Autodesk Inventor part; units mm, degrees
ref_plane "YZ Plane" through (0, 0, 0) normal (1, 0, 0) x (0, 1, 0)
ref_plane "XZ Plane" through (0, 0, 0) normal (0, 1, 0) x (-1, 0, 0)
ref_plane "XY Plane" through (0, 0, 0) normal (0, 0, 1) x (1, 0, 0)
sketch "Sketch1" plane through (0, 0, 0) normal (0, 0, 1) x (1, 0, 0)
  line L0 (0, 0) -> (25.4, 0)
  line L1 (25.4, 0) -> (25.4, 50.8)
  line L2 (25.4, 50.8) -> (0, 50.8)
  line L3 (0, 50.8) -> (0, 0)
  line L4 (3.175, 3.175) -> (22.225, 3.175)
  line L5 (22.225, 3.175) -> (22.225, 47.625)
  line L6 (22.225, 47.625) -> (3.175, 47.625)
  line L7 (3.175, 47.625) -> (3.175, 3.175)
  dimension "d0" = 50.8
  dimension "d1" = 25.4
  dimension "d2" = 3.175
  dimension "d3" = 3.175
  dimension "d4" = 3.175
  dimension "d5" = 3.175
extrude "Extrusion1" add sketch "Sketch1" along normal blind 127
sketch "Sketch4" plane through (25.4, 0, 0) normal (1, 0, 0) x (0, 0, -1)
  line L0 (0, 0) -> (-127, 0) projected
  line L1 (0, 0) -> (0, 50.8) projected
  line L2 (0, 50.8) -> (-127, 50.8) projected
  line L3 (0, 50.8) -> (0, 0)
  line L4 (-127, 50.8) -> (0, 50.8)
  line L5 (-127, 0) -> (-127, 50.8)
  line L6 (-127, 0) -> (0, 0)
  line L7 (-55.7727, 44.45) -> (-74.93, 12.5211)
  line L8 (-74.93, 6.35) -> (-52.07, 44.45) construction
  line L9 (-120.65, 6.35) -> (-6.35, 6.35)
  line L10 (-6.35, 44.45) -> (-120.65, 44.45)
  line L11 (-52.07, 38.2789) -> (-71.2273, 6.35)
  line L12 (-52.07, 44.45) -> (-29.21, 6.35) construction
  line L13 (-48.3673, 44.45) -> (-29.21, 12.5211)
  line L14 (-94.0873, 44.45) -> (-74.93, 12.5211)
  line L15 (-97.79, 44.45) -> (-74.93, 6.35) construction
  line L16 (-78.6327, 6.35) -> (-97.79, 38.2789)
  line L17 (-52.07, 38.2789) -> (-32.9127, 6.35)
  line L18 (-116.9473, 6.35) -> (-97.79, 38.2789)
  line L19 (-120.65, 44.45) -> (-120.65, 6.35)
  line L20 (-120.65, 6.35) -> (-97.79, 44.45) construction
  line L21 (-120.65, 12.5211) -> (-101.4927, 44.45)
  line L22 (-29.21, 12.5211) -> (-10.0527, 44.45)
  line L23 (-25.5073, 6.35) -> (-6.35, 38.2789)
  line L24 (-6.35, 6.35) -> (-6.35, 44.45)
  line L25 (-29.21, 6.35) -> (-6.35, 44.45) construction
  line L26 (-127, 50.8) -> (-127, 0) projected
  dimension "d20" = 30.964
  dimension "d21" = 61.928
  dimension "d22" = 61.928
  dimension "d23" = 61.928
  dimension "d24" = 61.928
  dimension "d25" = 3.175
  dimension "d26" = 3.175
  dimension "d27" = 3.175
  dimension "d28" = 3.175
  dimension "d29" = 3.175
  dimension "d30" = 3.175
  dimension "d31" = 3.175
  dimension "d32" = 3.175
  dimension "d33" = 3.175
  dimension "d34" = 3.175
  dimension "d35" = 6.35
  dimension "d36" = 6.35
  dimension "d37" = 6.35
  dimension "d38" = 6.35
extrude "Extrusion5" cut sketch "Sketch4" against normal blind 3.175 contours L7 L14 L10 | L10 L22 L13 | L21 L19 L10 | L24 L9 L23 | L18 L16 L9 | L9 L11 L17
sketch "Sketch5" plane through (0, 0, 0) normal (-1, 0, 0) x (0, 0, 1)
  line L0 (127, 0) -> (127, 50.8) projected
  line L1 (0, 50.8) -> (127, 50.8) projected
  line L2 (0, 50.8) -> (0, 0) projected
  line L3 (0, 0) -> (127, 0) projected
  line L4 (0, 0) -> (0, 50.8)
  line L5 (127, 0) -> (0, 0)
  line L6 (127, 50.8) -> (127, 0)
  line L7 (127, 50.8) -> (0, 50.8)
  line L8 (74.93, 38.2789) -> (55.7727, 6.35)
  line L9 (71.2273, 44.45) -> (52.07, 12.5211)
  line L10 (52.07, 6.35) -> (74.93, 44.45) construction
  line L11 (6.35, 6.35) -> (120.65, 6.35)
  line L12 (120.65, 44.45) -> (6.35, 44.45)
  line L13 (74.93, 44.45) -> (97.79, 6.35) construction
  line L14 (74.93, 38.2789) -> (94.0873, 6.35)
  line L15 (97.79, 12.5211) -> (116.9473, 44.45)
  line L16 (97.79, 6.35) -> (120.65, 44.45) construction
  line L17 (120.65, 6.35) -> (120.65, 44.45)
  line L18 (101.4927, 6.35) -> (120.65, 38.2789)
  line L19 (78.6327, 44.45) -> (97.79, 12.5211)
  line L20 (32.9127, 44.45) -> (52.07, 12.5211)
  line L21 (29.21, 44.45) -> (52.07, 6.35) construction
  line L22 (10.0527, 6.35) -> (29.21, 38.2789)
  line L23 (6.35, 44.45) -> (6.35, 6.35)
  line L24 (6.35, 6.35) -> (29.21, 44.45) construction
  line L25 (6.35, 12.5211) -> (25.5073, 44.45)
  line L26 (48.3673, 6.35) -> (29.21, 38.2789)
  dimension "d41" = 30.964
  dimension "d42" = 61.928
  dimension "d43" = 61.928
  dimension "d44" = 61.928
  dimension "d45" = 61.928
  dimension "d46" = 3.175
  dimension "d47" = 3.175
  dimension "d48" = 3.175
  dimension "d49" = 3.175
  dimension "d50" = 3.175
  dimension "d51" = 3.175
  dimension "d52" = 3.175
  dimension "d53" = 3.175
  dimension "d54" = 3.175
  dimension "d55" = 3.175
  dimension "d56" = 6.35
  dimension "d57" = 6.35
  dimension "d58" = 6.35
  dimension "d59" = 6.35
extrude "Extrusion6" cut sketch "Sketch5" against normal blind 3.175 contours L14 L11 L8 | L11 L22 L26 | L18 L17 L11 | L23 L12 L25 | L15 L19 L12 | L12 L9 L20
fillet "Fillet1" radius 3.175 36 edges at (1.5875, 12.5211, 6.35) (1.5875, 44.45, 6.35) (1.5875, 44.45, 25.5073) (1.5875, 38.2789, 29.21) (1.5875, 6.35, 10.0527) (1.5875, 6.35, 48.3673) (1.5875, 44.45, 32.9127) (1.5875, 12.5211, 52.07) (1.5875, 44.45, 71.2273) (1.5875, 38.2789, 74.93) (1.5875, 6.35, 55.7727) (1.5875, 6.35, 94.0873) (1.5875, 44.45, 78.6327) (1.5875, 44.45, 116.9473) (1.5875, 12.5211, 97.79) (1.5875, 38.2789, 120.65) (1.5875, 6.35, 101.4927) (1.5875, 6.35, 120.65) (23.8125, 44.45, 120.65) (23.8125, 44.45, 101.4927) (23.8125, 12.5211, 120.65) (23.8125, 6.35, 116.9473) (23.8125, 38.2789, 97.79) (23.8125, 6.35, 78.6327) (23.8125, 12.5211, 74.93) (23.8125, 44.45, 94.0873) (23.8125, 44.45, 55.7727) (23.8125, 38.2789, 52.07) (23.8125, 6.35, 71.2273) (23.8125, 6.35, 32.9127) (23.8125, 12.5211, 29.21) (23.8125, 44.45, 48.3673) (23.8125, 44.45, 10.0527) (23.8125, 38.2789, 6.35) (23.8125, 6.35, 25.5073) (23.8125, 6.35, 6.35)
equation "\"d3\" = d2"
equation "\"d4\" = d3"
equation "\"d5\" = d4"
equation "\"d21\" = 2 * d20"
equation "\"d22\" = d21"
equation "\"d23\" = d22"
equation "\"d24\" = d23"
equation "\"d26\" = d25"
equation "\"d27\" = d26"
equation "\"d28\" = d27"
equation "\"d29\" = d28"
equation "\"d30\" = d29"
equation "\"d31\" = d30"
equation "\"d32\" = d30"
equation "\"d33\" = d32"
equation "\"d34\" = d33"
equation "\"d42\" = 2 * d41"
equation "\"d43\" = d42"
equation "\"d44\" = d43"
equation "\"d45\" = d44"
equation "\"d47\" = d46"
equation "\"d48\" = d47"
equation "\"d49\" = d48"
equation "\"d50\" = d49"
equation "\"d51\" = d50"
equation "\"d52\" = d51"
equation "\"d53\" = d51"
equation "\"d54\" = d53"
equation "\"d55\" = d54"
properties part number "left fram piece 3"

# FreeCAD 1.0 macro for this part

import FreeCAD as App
import Part
import Sketcher

V = App.Vector
Q = App.Units.Quantity


def edges_at(feature, points):
    """Names of the edges that pass closest to the given points."""
    edges = feature.Shape.Edges
    near = lambda p: min(range(len(edges)), key=lambda i: edges[i].distToShape(Part.Vertex(*p))[0])
    return sorted({f"Edge{near(p) + 1}" for p in points})

doc = App.newDocument("Part")
body = doc.addObject("PartDesign::Body", "Body")

# Sketch on XY plane
sketch1 = body.newObject("Sketcher::SketchObject", "Sketch")
sketch1.AttachmentSupport = (doc.getObject("XY_Plane"), [""])
sketch1.MapMode = "FlatFace"
sketch1.addGeometry([
    Part.LineSegment(V(0, 50.8, 0), V(0, 0, 0)),  # 0
    Part.LineSegment(V(0, 0, 0), V(25.4, 0, 0)),  # 1
    Part.LineSegment(V(25.4, 0, 0), V(25.4, 50.8, 0)),  # 2
    Part.LineSegment(V(25.4, 50.8, 0), V(0, 50.8, 0)),  # 3
    Part.LineSegment(V(22.225, 3.175, 0), V(3.175, 3.175, 0)),  # 4
    Part.LineSegment(V(3.175, 3.175, 0), V(3.175, 47.625, 0)),  # 5
    Part.LineSegment(V(3.175, 47.625, 0), V(22.225, 47.625, 0)),  # 6
    Part.LineSegment(V(22.225, 47.625, 0), V(22.225, 3.175, 0)),  # 7
], False)
sketch1.addConstraint([
    Sketcher.Constraint("Coincident", 0, 2, 1, 1),
    Sketcher.Constraint("Coincident", 1, 2, 2, 1),
    Sketcher.Constraint("Coincident", 2, 2, 3, 1),
    Sketcher.Constraint("Coincident", 3, 2, 0, 1),
    Sketcher.Constraint("Coincident", 4, 2, 5, 1),
    Sketcher.Constraint("Coincident", 5, 2, 6, 1),
    Sketcher.Constraint("Coincident", 6, 2, 7, 1),
    Sketcher.Constraint("Coincident", 7, 2, 4, 1),
    Sketcher.Constraint("Vertical", 0),
    Sketcher.Constraint("Horizontal", 1),
    Sketcher.Constraint("Vertical", 2),
    Sketcher.Constraint("Horizontal", 3),
    Sketcher.Constraint("Horizontal", 4),
    Sketcher.Constraint("Vertical", 5),
    Sketcher.Constraint("Horizontal", 6),
    Sketcher.Constraint("Vertical", 7),
    Sketcher.Constraint("Coincident", 0, 2, -1, 1),
    Sketcher.Constraint("DistanceX", 1, 1, 1, 2, Q("1 in")),
    Sketcher.Constraint("DistanceY", 0, 2, 0, 1, Q("2 in")),
    Sketcher.Constraint("DistanceX", -1, 1, 4, 2, Q("0.125 in")),
    Sketcher.Constraint("DistanceY", -1, 1, 4, 2, Q("0.125 in")),
    Sketcher.Constraint("DistanceY", 5, 2, 3, 2, Q("0.125 in")),
    Sketcher.Constraint("DistanceX", 6, 2, 2, 2, Q("0.125 in")),
])
pad1 = body.newObject("PartDesign::Pad", "Pad")
pad1.Profile = sketch1
pad1.Length = Q("5 in")

# Sketch on YZ plane
sketch2 = body.newObject("Sketcher::SketchObject", "Sketch001")
sketch2.AttachmentSupport = (doc.getObject("YZ_Plane"), [""])
sketch2.MapMode = "FlatFace"
sketch2.AttachmentOffset = App.Placement(V(0, 0, 1 * 25.4), App.Rotation())
sketch2.addGeometry([
    Part.LineSegment(V(12.5211, 74.93, 0), V(44.45, 55.7727, 0)),  # 0
    Part.LineSegment(V(44.45, 55.7727, 0), V(44.45, 94.0873, 0)),  # 1
    Part.LineSegment(V(44.45, 94.0873, 0), V(12.5211, 74.93, 0)),  # 2
    Part.LineSegment(V(44.45, 10.0527, 0), V(44.45, 48.3673, 0)),  # 3
    Part.LineSegment(V(44.45, 48.3673, 0), V(12.5211, 29.21, 0)),  # 4
    Part.LineSegment(V(12.5211, 29.21, 0), V(44.45, 10.0527, 0)),  # 5
    Part.LineSegment(V(12.5211, 120.65, 0), V(44.45, 101.4927, 0)),  # 6
    Part.LineSegment(V(44.45, 101.4927, 0), V(44.45, 120.65, 0)),  # 7
    Part.LineSegment(V(44.45, 120.65, 0), V(12.5211, 120.65, 0)),  # 8
    Part.LineSegment(V(6.35, 6.35, 0), V(38.2789, 6.35, 0)),  # 9
    Part.LineSegment(V(38.2789, 6.35, 0), V(6.35, 25.5073, 0)),  # 10
    Part.LineSegment(V(6.35, 25.5073, 0), V(6.35, 6.35, 0)),  # 11
    Part.LineSegment(V(38.2789, 97.79, 0), V(6.35, 116.9473, 0)),  # 12
    Part.LineSegment(V(6.35, 116.9473, 0), V(6.35, 78.6327, 0)),  # 13
    Part.LineSegment(V(6.35, 78.6327, 0), V(38.2789, 97.79, 0)),  # 14
    Part.LineSegment(V(6.35, 71.2273, 0), V(6.35, 32.9127, 0)),  # 15
    Part.LineSegment(V(6.35, 32.9127, 0), V(38.2789, 52.07, 0)),  # 16
    Part.LineSegment(V(38.2789, 52.07, 0), V(6.35, 71.2273, 0)),  # 17
], False)
sketch2.addConstraint([
    Sketcher.Constraint("Coincident", 0, 2, 1, 1),
    Sketcher.Constraint("Coincident", 1, 2, 2, 1),
    Sketcher.Constraint("Coincident", 2, 2, 0, 1),
    Sketcher.Constraint("Coincident", 3, 2, 4, 1),
    Sketcher.Constraint("Coincident", 4, 2, 5, 1),
    Sketcher.Constraint("Coincident", 5, 2, 3, 1),
    Sketcher.Constraint("Coincident", 6, 2, 7, 1),
    Sketcher.Constraint("Coincident", 7, 2, 8, 1),
    Sketcher.Constraint("Coincident", 8, 2, 6, 1),
    Sketcher.Constraint("Coincident", 9, 2, 10, 1),
    Sketcher.Constraint("Coincident", 10, 2, 11, 1),
    Sketcher.Constraint("Coincident", 11, 2, 9, 1),
    Sketcher.Constraint("Coincident", 12, 2, 13, 1),
    Sketcher.Constraint("Coincident", 13, 2, 14, 1),
    Sketcher.Constraint("Coincident", 14, 2, 12, 1),
    Sketcher.Constraint("Coincident", 15, 2, 16, 1),
    Sketcher.Constraint("Coincident", 16, 2, 17, 1),
    Sketcher.Constraint("Coincident", 17, 2, 15, 1),
    Sketcher.Constraint("Vertical", 1),
    Sketcher.Constraint("Vertical", 3),
    Sketcher.Constraint("Vertical", 7),
    Sketcher.Constraint("Horizontal", 8),
    Sketcher.Constraint("Horizontal", 9),
    Sketcher.Constraint("Vertical", 11),
    Sketcher.Constraint("Vertical", 13),
    Sketcher.Constraint("Vertical", 15),
    Sketcher.Constraint("Parallel", 2, 4),
    Sketcher.Constraint("Parallel", 0, 5),
    Sketcher.Constraint("Parallel", 5, 6),
    Sketcher.Constraint("Parallel", 6, 10),
    Sketcher.Constraint("Parallel", 10, 12),
    Sketcher.Constraint("Parallel", 4, 14),
    Sketcher.Constraint("Parallel", 14, 16),
    Sketcher.Constraint("Parallel", 12, 17),
    Sketcher.Constraint("Vertical", 1, 2, 3, 2),
    Sketcher.Constraint("Vertical", 2, 2, 4, 2),
    Sketcher.Constraint("Vertical", 5, 2, 6, 2),
    Sketcher.Constraint("Vertical", 4, 2, 8, 2),
    Sketcher.Constraint("Vertical", 11, 2, 12, 2),
    Sketcher.Constraint("Vertical", 9, 2, 14, 2),
    Sketcher.Constraint("Vertical", 13, 2, 15, 2),
    Sketcher.Constraint("Vertical", 14, 2, 16, 2),
    Sketcher.Constraint("Equal", 8, 9),
    Sketcher.Constraint("Equal", 0, 2),
    Sketcher.Constraint("DistanceY", -1, 1, 9, 2, Q("0.25 in")),
    Sketcher.Constraint("DistanceX", -1, 1, 10, 2, Q("0.25 in")),
    Sketcher.Constraint("DistanceY", 3, 2, 1, 2, Q("1.8 in")),
    Sketcher.Constraint("DistanceY", 0, 2, 6, 2, Q("1.8 in")),
    Sketcher.Constraint("DistanceY", 9, 2, 4, 2, Q("0.9 in")),
    Sketcher.Constraint("DistanceX", 10, 2, 5, 2, Q("1.5 in")),
    Sketcher.Constraint("DistanceY", 1, 2, 12, 2, Q("0.9 in")),
    Sketcher.Constraint("DistanceY", 4, 2, 16, 2, Q("0.9 in")),
    Sketcher.Constraint("DistanceX", 8, 2, 8, 1, 31.929),
    Sketcher.Constraint("DistanceY", 1, 1, 1, 2, 38.3146),
])
pocket1 = body.newObject("PartDesign::Pocket", "Pocket")
pocket1.Profile = sketch2
pocket1.Length = Q("0.125 in")

# Sketch on YZ plane
sketch3 = body.newObject("Sketcher::SketchObject", "Sketch002")
sketch3.AttachmentSupport = (doc.getObject("YZ_Plane"), [""])
sketch3.MapMode = "FlatFace"
sketch3.addGeometry([
    Part.LineSegment(V(6.35, 94.0873, 0), V(38.2789, 74.93, 0)),  # 0
    Part.LineSegment(V(38.2789, 74.93, 0), V(6.35, 55.7727, 0)),  # 1
    Part.LineSegment(V(6.35, 55.7727, 0), V(6.35, 94.0873, 0)),  # 2
    Part.LineSegment(V(6.35, 10.0527, 0), V(6.35, 48.3673, 0)),  # 3
    Part.LineSegment(V(6.35, 48.3673, 0), V(38.2789, 29.21, 0)),  # 4
    Part.LineSegment(V(38.2789, 29.21, 0), V(6.35, 10.0527, 0)),  # 5
    Part.LineSegment(V(38.2789, 120.65, 0), V(6.35, 101.4927, 0)),  # 6
    Part.LineSegment(V(6.35, 101.4927, 0), V(6.35, 120.65, 0)),  # 7
    Part.LineSegment(V(6.35, 120.65, 0), V(38.2789, 120.65, 0)),  # 8
    Part.LineSegment(V(44.45, 6.35, 0), V(12.5211, 6.35, 0)),  # 9
    Part.LineSegment(V(12.5211, 6.35, 0), V(44.45, 25.5073, 0)),  # 10
    Part.LineSegment(V(44.45, 25.5073, 0), V(44.45, 6.35, 0)),  # 11
    Part.LineSegment(V(12.5211, 97.79, 0), V(44.45, 116.9473, 0)),  # 12
    Part.LineSegment(V(44.45, 116.9473, 0), V(44.45, 78.6327, 0)),  # 13
    Part.LineSegment(V(44.45, 78.6327, 0), V(12.5211, 97.79, 0)),  # 14
    Part.LineSegment(V(44.45, 71.2273, 0), V(44.45, 32.9127, 0)),  # 15
    Part.LineSegment(V(44.45, 32.9127, 0), V(12.5211, 52.07, 0)),  # 16
    Part.LineSegment(V(12.5211, 52.07, 0), V(44.45, 71.2273, 0)),  # 17
], False)
sketch3.addConstraint([
    Sketcher.Constraint("Coincident", 0, 2, 1, 1),
    Sketcher.Constraint("Coincident", 1, 2, 2, 1),
    Sketcher.Constraint("Coincident", 2, 2, 0, 1),
    Sketcher.Constraint("Coincident", 3, 2, 4, 1),
    Sketcher.Constraint("Coincident", 4, 2, 5, 1),
    Sketcher.Constraint("Coincident", 5, 2, 3, 1),
    Sketcher.Constraint("Coincident", 6, 2, 7, 1),
    Sketcher.Constraint("Coincident", 7, 2, 8, 1),
    Sketcher.Constraint("Coincident", 8, 2, 6, 1),
    Sketcher.Constraint("Coincident", 9, 2, 10, 1),
    Sketcher.Constraint("Coincident", 10, 2, 11, 1),
    Sketcher.Constraint("Coincident", 11, 2, 9, 1),
    Sketcher.Constraint("Coincident", 12, 2, 13, 1),
    Sketcher.Constraint("Coincident", 13, 2, 14, 1),
    Sketcher.Constraint("Coincident", 14, 2, 12, 1),
    Sketcher.Constraint("Coincident", 15, 2, 16, 1),
    Sketcher.Constraint("Coincident", 16, 2, 17, 1),
    Sketcher.Constraint("Coincident", 17, 2, 15, 1),
    Sketcher.Constraint("Vertical", 2),
    Sketcher.Constraint("Vertical", 3),
    Sketcher.Constraint("Vertical", 7),
    Sketcher.Constraint("Horizontal", 8),
    Sketcher.Constraint("Horizontal", 9),
    Sketcher.Constraint("Vertical", 11),
    Sketcher.Constraint("Vertical", 13),
    Sketcher.Constraint("Vertical", 15),
    Sketcher.Constraint("Parallel", 0, 4),
    Sketcher.Constraint("Parallel", 1, 5),
    Sketcher.Constraint("Parallel", 5, 6),
    Sketcher.Constraint("Parallel", 6, 10),
    Sketcher.Constraint("Parallel", 10, 12),
    Sketcher.Constraint("Parallel", 4, 14),
    Sketcher.Constraint("Parallel", 14, 16),
    Sketcher.Constraint("Parallel", 12, 17),
    Sketcher.Constraint("Vertical", 2, 2, 3, 2),
    Sketcher.Constraint("Vertical", 0, 2, 4, 2),
    Sketcher.Constraint("Vertical", 5, 2, 6, 2),
    Sketcher.Constraint("Vertical", 4, 2, 8, 2),
    Sketcher.Constraint("Vertical", 11, 2, 12, 2),
    Sketcher.Constraint("Vertical", 9, 2, 14, 2),
    Sketcher.Constraint("Vertical", 13, 2, 15, 2),
    Sketcher.Constraint("Vertical", 14, 2, 16, 2),
    Sketcher.Constraint("Equal", 8, 9),
    Sketcher.Constraint("Equal", 0, 1),
    Sketcher.Constraint("DistanceX", -1, 1, 1, 2, Q("0.25 in")),
    Sketcher.Constraint("DistanceY", -1, 1, 9, 2, Q("0.25 in")),
    Sketcher.Constraint("DistanceY", 3, 2, 2, 2, Q("1.8 in")),
    Sketcher.Constraint("DistanceY", 1, 2, 6, 2, Q("1.8 in")),
    Sketcher.Constraint("DistanceY", 9, 2, 4, 2, Q("0.9 in")),
    Sketcher.Constraint("DistanceX", 5, 2, 10, 2, Q("1.5 in")),
    Sketcher.Constraint("DistanceY", 2, 2, 12, 2, Q("0.9 in")),
    Sketcher.Constraint("DistanceY", 4, 2, 16, 2, Q("0.9 in")),
    Sketcher.Constraint("DistanceX", 8, 1, 8, 2, 31.929),
    Sketcher.Constraint("DistanceY", 2, 1, 2, 2, 38.3146),
])
pocket2 = body.newObject("PartDesign::Pocket", "Pocket001")
pocket2.Profile = sketch3
pocket2.Length = Q("0.125 in")
pocket2.Reversed = True
doc.recompute()

fillet = body.newObject("PartDesign::Fillet", "Fillet")
fillet.Base = (pocket2, edges_at(pocket2, [
    (1.587, 12.521, 6.35),
    (1.587, 44.45, 6.35),
    (1.587, 44.45, 25.507),
    (1.587, 38.279, 29.21),
    (1.587, 6.35, 10.053),
    (1.587, 6.35, 48.367),
    (1.587, 44.45, 32.913),
    (1.587, 12.521, 52.07),
    (1.587, 44.45, 71.227),
    (1.587, 38.279, 74.93),
    (1.587, 6.35, 55.773),
    (1.587, 6.35, 94.087),
    (1.587, 44.45, 78.633),
    (1.587, 44.45, 116.947),
    (1.587, 12.521, 97.79),
    (1.587, 38.279, 120.65),
    (1.587, 6.35, 101.493),
    (1.587, 6.35, 120.65),
    (23.812, 44.45, 120.65),
    (23.812, 44.45, 101.493),
    (23.812, 12.521, 120.65),
    (23.812, 6.35, 116.947),
    (23.812, 38.279, 97.79),
    (23.812, 6.35, 78.633),
    (23.812, 12.521, 74.93),
    (23.812, 44.45, 94.087),
    (23.812, 44.45, 55.773),
    (23.812, 38.279, 52.07),
    (23.812, 6.35, 71.227),
    (23.812, 6.35, 32.913),
    (23.812, 12.521, 29.21),
    (23.812, 44.45, 48.367),
    (23.812, 44.45, 10.053),
    (23.812, 38.279, 6.35),
    (23.812, 6.35, 25.507),
    (23.812, 6.35, 6.35),
]))
fillet.Radius = Q("0.125 in")

doc.recompute()
